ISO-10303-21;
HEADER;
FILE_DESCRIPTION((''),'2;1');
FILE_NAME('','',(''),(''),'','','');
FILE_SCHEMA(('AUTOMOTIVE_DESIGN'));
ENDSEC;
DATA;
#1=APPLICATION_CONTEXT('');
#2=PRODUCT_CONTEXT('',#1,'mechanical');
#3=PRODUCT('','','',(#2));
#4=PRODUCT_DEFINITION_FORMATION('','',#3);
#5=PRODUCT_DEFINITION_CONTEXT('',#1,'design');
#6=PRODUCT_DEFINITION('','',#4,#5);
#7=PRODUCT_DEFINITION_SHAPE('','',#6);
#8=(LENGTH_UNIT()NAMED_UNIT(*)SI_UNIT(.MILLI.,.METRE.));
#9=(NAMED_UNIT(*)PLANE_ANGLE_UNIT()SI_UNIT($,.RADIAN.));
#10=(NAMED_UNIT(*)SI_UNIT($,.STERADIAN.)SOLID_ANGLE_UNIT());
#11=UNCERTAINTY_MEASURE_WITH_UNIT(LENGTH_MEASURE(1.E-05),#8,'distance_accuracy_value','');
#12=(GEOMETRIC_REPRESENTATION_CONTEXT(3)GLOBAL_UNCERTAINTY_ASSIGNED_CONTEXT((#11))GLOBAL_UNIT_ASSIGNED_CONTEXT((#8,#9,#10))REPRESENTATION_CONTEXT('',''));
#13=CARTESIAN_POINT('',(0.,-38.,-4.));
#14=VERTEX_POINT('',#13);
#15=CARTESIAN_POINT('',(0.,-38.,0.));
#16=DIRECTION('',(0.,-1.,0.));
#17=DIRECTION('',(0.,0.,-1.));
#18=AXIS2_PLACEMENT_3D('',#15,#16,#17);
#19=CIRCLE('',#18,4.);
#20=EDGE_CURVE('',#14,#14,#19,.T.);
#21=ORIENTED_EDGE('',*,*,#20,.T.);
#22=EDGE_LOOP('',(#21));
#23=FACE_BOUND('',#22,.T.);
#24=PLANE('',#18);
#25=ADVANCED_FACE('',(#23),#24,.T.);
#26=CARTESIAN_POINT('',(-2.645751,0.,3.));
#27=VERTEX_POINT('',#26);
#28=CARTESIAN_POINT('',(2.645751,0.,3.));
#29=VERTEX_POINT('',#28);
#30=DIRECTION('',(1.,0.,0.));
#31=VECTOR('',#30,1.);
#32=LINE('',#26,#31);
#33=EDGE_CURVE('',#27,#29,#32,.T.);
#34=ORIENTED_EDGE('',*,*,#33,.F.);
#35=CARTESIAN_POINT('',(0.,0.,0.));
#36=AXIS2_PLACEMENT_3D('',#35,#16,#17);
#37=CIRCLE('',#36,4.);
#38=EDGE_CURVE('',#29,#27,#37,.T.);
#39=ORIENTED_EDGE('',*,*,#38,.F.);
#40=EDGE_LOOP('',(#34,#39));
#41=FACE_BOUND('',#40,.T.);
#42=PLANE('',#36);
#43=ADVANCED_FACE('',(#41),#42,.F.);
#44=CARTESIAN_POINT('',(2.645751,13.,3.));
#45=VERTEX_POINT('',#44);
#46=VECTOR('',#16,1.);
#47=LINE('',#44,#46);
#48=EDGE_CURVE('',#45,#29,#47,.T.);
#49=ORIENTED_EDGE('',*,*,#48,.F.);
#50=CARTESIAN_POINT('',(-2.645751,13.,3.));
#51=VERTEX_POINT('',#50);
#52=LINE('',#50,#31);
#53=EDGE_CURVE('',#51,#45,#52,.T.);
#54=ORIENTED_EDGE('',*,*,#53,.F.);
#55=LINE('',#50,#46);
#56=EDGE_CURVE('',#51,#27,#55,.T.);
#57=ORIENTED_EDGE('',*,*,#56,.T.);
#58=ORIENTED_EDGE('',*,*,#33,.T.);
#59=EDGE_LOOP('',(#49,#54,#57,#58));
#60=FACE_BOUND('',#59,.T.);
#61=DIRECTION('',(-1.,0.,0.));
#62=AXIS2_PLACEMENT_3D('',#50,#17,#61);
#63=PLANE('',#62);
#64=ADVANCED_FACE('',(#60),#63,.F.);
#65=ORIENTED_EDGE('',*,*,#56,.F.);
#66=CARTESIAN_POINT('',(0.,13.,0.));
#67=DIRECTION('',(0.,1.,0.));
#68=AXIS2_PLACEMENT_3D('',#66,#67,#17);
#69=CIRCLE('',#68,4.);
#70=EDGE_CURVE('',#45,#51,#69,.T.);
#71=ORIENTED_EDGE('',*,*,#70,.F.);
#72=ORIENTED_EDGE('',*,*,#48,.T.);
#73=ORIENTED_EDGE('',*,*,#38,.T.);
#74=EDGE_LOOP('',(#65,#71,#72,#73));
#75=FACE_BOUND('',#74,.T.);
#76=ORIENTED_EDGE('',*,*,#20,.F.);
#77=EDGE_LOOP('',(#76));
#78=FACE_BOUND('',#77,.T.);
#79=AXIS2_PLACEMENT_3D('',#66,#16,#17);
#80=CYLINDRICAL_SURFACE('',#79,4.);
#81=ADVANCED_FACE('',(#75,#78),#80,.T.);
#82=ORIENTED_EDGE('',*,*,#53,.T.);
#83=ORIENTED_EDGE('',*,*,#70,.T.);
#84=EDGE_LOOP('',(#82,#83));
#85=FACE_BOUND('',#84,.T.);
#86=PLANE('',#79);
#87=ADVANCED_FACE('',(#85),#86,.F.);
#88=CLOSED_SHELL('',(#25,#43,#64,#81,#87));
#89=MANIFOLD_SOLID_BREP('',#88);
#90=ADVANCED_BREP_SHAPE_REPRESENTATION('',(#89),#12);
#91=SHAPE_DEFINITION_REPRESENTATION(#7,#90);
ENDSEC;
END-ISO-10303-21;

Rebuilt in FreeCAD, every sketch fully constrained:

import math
import FreeCAD as App
import Part
import Sketcher
from FreeCAD import Vector

doc = App.newDocument("Part")
params = doc.addObject("Spreadsheet::Sheet", "Params")
for row, (alias, value) in enumerate([
    ("sketch1_radius", "4 mm"),
    ("pad1_length", "13 mm"),
    ("sketch2_diameter", "8 mm"),
    ("pad2_length", "38 mm"),
], start=1):
    params.set(f"A{row}", alias)
    params.set(f"B{row}", "=" + value)
    params.setAlias(f"B{row}", alias)

body = doc.addObject("PartDesign::Body", "Body")

sketch1 = doc.addObject("Sketcher::SketchObject", "Sketch")
body.addObject(sketch1)
sketch1.AttachmentSupport = (doc.XZ_Plane, [""])
sketch1.MapMode = "FlatFace"
sketch1.addGeometry(Part.LineSegment(Vector(-2.645751, 3, 0), Vector(2.645751, 3, 0)), False)
sketch1.addGeometry(Part.ArcOfCircle(Part.Circle(Vector(0, 0, 0), Vector(0, 0, 1), 4), math.radians(131.409622), math.radians(408.590378)), False)
sketch1.addConstraint(Sketcher.Constraint("Coincident", 0, 1, 1, 1))
sketch1.addConstraint(Sketcher.Constraint("Coincident", 1, 2, 0, 2))
sketch1.addConstraint(Sketcher.Constraint("Horizontal", 0))
sketch1.addConstraint(Sketcher.Constraint("Coincident", 1, 3, -1, 1))
sketch1.addConstraint(Sketcher.Constraint("Radius", 1, 4.0))
sketch1.addConstraint(Sketcher.Constraint("DistanceY", -1, 1, 0, 1, 3.0))
sketch1.setExpression("Constraints[4]", "Params.sketch1_radius")
pad1 = doc.addObject("PartDesign::Pad", "Pad")
body.addObject(pad1)
pad1.Profile = sketch1
pad1.setExpression("Length", "Params.pad1_length")
pad1.Reversed = True

sketch2 = doc.addObject("Sketcher::SketchObject", "Sketch001")
body.addObject(sketch2)
sketch2.AttachmentSupport = (doc.XZ_Plane, [""])
sketch2.MapMode = "FlatFace"
sketch2.AttachmentOffset = App.Placement(Vector(0, 0, 38), App.Rotation())
sketch2.addGeometry(Part.Circle(Vector(0, 0, 0), Vector(0, 0, 1), 4), False)
sketch2.addConstraint(Sketcher.Constraint("Coincident", 0, 3, -1, 1))
sketch2.addConstraint(Sketcher.Constraint("Diameter", 0, 8.0))
sketch2.setExpression("Constraints[1]", "Params.sketch2_diameter")
pad2 = doc.addObject("PartDesign::Pad", "Pad001")
body.addObject(pad2)
pad2.Profile = sketch2
pad2.setExpression("Length", "Params.pad2_length")
pad2.Reversed = True

doc.recompute()
